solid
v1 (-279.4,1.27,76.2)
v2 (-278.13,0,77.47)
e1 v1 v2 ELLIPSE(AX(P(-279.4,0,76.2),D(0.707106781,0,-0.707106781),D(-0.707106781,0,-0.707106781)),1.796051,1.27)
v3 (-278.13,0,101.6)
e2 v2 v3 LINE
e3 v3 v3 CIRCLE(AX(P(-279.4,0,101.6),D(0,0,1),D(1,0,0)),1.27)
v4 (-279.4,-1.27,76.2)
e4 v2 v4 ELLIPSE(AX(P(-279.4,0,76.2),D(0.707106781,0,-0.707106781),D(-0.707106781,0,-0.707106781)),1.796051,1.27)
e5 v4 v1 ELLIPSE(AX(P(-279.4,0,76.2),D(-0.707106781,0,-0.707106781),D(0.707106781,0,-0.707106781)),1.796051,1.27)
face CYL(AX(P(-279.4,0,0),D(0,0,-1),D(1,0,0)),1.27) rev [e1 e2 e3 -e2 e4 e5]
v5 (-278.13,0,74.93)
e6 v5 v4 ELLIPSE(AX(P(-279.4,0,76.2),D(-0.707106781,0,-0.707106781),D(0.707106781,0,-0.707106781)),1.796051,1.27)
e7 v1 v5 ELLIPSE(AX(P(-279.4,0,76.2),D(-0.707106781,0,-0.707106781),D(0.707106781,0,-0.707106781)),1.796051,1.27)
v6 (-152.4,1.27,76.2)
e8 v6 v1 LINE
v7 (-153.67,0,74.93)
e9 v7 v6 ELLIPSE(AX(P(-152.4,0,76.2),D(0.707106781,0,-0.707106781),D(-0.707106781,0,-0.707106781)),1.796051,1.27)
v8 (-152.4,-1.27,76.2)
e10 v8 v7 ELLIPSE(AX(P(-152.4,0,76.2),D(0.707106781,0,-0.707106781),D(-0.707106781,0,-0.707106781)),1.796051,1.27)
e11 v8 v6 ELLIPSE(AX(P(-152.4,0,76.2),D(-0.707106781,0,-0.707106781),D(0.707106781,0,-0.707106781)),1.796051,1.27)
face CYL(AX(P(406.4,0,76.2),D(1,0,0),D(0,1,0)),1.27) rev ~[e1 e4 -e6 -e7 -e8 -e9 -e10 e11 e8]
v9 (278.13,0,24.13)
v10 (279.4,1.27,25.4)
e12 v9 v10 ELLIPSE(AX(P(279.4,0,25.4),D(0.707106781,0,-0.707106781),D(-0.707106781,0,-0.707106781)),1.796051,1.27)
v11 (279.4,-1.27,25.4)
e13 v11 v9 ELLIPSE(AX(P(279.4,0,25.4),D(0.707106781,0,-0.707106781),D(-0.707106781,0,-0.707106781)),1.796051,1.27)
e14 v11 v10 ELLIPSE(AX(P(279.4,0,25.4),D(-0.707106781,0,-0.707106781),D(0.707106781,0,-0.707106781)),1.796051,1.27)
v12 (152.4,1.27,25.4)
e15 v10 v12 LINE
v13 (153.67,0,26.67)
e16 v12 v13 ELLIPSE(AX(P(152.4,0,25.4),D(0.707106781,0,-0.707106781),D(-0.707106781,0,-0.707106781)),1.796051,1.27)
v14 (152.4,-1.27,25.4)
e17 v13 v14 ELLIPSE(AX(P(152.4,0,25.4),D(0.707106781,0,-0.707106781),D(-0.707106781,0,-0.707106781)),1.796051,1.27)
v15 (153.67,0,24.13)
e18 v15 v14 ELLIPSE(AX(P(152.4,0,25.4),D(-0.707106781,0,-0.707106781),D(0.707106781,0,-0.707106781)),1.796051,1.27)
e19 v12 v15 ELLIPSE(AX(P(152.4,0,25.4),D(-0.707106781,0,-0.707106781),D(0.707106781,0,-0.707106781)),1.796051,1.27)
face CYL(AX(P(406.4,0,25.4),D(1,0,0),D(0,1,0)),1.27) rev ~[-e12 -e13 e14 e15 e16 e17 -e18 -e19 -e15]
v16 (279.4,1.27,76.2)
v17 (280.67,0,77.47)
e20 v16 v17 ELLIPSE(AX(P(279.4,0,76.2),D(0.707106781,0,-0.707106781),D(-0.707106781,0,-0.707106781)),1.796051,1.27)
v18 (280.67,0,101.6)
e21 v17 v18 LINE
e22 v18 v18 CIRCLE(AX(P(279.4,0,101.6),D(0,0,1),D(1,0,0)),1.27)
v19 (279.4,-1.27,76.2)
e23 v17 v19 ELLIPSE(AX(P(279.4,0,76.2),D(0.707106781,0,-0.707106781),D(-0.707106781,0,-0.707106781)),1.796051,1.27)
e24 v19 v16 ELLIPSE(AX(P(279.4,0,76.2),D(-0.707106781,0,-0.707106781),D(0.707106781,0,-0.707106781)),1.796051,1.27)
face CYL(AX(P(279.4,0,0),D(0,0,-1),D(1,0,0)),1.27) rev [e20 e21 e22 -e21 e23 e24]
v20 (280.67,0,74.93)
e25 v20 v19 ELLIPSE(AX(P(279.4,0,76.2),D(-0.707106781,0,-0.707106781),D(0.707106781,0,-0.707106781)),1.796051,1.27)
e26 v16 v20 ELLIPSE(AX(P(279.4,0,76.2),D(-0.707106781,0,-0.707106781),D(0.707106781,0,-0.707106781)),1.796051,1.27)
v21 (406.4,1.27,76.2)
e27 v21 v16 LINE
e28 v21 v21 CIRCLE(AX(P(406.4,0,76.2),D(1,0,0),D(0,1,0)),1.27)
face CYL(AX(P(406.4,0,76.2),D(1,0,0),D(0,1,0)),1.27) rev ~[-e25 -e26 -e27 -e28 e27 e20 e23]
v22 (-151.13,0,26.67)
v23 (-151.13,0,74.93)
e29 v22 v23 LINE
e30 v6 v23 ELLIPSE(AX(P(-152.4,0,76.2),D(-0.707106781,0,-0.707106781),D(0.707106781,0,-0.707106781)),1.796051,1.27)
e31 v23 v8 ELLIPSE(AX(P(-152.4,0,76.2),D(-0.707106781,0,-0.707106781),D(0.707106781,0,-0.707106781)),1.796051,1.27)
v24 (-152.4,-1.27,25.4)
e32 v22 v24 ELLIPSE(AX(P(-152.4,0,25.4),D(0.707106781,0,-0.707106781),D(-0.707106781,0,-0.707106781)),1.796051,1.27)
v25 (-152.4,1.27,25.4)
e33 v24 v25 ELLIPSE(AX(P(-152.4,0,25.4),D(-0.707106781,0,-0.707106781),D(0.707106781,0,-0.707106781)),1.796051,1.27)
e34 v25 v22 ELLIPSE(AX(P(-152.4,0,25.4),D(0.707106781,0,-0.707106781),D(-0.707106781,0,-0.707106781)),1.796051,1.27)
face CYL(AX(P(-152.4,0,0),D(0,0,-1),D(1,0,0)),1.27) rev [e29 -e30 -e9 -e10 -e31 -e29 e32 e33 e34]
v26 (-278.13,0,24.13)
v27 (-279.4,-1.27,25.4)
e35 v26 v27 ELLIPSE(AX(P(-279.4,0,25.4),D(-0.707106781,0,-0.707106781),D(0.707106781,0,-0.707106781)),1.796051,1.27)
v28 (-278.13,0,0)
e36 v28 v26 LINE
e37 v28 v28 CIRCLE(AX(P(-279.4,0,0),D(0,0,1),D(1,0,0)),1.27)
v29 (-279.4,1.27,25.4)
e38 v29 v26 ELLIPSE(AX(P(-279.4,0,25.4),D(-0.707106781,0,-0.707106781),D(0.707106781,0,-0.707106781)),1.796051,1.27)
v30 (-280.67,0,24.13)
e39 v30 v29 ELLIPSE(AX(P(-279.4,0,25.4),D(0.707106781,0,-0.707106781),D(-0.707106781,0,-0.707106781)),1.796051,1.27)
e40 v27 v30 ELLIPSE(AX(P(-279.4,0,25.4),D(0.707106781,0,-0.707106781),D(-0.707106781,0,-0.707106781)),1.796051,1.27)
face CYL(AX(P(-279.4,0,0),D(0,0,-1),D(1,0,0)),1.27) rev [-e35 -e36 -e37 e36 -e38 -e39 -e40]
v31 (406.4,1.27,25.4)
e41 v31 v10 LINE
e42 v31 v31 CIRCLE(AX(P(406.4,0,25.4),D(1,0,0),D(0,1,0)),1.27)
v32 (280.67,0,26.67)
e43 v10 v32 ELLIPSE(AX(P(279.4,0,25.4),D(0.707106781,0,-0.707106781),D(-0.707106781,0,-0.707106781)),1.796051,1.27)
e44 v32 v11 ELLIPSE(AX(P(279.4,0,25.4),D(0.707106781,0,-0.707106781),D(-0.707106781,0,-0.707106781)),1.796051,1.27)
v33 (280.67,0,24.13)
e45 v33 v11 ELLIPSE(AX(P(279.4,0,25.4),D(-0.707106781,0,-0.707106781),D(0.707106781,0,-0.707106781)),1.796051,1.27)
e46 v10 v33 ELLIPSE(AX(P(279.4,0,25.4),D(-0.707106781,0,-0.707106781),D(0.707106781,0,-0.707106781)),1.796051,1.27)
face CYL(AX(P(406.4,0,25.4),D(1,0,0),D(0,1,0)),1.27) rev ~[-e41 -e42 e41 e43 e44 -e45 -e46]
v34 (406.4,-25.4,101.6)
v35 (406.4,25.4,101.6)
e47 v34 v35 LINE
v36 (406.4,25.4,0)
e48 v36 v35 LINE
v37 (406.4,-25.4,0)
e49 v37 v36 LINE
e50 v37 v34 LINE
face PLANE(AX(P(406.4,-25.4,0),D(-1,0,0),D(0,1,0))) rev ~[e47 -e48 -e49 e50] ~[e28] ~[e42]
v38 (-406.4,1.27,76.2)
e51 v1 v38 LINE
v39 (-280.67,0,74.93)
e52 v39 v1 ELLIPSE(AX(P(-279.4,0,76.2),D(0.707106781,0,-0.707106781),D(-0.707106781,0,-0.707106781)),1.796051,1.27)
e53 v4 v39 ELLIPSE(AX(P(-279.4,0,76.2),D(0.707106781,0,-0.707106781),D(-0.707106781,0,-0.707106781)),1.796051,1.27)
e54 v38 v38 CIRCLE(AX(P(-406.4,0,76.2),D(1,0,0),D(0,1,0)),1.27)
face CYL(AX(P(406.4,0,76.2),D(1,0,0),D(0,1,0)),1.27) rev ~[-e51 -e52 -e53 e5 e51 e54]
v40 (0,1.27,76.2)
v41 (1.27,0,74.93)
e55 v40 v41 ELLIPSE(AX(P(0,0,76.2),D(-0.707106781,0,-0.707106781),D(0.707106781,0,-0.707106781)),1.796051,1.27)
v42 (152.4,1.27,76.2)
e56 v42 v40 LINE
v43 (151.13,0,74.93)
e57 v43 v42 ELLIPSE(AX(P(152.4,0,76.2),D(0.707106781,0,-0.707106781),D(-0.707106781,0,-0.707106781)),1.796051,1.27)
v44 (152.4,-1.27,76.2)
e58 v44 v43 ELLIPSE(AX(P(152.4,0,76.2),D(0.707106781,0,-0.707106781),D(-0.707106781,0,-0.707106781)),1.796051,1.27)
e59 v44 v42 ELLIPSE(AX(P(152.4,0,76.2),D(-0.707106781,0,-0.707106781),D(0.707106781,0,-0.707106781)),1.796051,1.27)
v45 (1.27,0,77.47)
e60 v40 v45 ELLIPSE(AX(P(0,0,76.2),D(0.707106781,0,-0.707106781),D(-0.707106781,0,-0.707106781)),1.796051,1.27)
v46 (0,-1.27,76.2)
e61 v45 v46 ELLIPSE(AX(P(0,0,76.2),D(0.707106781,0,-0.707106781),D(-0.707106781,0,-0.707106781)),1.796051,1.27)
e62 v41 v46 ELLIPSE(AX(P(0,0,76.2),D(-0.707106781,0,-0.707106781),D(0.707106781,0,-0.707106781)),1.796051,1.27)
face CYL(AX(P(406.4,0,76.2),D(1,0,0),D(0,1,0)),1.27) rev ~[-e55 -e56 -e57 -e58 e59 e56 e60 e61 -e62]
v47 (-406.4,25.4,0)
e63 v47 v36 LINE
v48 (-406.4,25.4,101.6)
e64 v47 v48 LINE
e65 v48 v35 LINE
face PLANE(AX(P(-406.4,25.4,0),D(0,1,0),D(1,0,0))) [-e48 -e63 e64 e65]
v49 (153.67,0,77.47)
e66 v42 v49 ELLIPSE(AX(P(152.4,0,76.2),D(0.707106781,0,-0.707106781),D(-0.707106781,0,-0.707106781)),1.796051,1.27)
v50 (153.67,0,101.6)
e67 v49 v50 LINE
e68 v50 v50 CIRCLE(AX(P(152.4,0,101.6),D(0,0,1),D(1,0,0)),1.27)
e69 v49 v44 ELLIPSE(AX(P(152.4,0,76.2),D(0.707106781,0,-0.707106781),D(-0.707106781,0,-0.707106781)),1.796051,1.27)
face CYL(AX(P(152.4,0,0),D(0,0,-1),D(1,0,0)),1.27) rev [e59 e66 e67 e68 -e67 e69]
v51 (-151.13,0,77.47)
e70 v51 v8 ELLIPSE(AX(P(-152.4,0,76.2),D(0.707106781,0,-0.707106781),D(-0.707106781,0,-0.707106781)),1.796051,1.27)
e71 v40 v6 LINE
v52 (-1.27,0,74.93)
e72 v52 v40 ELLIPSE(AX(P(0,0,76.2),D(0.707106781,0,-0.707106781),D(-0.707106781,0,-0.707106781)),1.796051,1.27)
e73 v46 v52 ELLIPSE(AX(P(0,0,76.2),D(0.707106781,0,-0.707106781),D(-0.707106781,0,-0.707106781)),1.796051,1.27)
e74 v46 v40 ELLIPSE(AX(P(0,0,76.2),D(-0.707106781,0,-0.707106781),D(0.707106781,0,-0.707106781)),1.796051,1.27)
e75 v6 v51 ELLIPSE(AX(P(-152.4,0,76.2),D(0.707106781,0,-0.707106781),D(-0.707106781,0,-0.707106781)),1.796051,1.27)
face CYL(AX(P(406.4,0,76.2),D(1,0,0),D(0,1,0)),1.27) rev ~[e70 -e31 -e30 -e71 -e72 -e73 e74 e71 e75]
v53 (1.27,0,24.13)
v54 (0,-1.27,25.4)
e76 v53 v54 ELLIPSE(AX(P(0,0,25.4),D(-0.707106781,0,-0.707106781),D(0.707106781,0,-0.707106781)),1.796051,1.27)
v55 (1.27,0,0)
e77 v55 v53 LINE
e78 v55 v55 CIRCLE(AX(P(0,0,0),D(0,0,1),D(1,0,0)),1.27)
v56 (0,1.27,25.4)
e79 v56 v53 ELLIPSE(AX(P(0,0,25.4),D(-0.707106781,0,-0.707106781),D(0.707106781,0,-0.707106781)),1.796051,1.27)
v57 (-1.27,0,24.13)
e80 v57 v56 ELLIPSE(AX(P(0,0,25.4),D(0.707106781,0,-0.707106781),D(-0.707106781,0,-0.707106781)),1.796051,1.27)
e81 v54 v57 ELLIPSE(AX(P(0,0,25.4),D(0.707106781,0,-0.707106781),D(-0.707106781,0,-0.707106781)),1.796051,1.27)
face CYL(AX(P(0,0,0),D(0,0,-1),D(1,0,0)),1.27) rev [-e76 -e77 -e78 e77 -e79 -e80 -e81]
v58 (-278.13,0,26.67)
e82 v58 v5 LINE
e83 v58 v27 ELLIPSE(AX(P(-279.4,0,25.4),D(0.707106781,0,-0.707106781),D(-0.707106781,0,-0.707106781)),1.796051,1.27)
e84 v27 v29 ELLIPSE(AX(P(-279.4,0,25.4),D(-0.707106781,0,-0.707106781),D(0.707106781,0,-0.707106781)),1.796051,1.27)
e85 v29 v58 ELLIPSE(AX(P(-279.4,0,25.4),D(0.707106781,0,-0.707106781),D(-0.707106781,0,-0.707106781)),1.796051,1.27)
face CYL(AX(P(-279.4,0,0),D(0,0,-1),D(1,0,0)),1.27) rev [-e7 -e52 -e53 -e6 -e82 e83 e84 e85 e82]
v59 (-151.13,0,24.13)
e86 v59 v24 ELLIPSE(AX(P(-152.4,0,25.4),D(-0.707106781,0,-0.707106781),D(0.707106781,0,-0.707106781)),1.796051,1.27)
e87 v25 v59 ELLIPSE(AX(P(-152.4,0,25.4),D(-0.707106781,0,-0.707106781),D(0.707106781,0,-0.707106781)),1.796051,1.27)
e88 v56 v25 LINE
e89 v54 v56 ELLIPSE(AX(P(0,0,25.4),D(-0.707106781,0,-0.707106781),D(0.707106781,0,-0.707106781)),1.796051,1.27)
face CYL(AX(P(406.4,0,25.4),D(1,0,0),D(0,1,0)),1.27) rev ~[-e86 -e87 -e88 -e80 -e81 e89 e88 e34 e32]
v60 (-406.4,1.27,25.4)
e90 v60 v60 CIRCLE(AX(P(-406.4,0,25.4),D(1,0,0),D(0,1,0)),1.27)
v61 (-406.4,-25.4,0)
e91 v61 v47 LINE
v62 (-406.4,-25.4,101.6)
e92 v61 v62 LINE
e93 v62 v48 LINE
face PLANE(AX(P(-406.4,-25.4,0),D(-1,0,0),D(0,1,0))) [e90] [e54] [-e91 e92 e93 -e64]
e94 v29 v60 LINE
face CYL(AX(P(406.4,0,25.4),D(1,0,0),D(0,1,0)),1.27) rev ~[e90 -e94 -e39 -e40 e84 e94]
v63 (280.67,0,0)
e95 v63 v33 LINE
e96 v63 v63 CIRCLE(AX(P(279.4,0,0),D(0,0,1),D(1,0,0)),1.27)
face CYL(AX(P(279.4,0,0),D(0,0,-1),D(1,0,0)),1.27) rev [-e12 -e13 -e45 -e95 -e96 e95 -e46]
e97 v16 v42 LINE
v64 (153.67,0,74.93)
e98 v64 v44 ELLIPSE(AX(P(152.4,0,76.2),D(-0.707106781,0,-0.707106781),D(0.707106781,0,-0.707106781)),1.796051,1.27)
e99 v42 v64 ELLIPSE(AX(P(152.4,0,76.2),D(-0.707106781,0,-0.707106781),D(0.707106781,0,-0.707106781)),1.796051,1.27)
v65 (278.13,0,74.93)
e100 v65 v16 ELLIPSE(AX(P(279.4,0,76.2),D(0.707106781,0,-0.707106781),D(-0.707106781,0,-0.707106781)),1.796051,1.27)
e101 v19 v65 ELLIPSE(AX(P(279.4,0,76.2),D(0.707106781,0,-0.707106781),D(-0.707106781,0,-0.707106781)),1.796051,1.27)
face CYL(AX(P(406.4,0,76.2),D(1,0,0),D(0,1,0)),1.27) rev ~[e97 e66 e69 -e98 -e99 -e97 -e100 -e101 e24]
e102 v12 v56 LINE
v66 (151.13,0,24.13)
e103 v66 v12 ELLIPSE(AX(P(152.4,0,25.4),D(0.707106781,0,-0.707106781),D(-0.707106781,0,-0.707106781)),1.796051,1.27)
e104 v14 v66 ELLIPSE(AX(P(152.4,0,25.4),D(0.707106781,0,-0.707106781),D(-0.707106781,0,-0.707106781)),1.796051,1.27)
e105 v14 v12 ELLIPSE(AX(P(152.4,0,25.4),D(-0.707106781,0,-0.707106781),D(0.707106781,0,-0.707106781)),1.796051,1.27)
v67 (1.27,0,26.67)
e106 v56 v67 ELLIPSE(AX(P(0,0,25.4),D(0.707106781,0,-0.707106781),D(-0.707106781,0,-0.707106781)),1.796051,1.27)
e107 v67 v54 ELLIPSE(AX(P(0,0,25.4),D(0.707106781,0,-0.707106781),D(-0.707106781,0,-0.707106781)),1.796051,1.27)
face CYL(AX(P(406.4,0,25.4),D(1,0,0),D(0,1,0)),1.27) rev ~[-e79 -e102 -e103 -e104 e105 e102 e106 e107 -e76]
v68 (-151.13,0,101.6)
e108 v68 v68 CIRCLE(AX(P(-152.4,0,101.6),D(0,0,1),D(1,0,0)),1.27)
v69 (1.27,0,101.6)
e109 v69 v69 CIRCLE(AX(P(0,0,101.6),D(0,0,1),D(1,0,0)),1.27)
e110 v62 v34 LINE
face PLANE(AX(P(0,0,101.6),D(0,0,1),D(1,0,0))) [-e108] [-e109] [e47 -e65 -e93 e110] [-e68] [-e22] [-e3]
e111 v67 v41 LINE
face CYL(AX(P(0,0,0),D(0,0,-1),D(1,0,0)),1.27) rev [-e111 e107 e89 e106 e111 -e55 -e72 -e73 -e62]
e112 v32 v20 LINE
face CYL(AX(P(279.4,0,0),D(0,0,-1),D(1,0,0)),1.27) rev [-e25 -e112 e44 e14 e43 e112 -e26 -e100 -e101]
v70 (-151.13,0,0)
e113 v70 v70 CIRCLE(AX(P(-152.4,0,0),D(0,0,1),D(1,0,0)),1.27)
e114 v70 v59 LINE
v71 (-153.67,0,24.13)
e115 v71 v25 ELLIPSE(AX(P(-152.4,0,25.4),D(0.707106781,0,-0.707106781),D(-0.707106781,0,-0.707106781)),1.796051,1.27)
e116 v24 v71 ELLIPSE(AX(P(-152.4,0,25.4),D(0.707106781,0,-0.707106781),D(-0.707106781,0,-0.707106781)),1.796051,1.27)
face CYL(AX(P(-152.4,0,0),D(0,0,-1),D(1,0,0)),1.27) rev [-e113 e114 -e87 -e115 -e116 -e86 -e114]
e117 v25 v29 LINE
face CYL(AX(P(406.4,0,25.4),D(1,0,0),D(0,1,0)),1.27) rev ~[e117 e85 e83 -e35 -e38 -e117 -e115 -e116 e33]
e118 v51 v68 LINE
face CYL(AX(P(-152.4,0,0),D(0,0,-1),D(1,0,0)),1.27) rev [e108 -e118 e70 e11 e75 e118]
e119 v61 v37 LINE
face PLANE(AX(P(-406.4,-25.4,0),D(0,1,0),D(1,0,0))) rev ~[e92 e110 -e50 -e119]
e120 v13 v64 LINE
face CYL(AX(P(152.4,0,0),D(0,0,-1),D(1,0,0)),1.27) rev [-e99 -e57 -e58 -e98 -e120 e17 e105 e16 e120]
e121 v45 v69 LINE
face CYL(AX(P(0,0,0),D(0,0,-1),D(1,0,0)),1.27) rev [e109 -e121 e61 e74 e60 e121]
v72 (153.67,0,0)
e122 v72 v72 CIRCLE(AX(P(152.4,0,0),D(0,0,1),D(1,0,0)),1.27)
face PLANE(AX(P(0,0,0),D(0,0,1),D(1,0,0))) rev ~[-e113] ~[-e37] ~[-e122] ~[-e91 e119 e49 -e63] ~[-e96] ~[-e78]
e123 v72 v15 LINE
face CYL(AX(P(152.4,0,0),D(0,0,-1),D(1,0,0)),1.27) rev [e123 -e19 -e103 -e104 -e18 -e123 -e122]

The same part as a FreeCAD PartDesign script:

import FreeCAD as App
import Part
import Sketcher
Q = App.Units.Quantity

doc = App.newDocument("Part")
body = doc.addObject("PartDesign::Body", "Body")

# Sketch on XY plane
sketch1 = doc.addObject("Sketcher::SketchObject", "Sketch")
body.addObject(sketch1)
sketch1.AttachmentSupport = (doc.XY_Plane, [""])
sketch1.MapMode = "FlatFace"
sketch1.addGeometry([
    Part.LineSegment(App.Vector(-406.4, 25.4, 0), App.Vector(-406.4, -25.4, 0)),  # 0
    Part.LineSegment(App.Vector(-406.4, -25.4, 0), App.Vector(406.4, -25.4, 0)),  # 1
    Part.LineSegment(App.Vector(406.4, -25.4, 0), App.Vector(406.4, 25.4, 0)),  # 2
    Part.LineSegment(App.Vector(406.4, 25.4, 0), App.Vector(-406.4, 25.4, 0)),  # 3
    Part.Circle(App.Vector(-279.4, 0, 0), App.Vector(0, 0, 1), 1.27),  # 4
    Part.Circle(App.Vector(-152.4, 0, 0), App.Vector(0, 0, 1), 1.27),  # 5
    Part.Circle(App.Vector(0, 0, 0), App.Vector(0, 0, 1), 1.27),  # 6
    Part.Circle(App.Vector(152.4, 0, 0), App.Vector(0, 0, 1), 1.27),  # 7
    Part.Circle(App.Vector(279.4, 0, 0), App.Vector(0, 0, 1), 1.27),  # 8
], False)
sketch1.addConstraint([
    Sketcher.Constraint("Coincident", 0, 2, 1, 1),
    Sketcher.Constraint("Coincident", 1, 2, 2, 1),
    Sketcher.Constraint("Coincident", 2, 2, 3, 1),
    Sketcher.Constraint("Coincident", 3, 2, 0, 1),
    Sketcher.Constraint("Vertical", 0),
    Sketcher.Constraint("Horizontal", 1),
    Sketcher.Constraint("Vertical", 2),
    Sketcher.Constraint("Horizontal", 3),
    Sketcher.Constraint("Coincident", 6, 3, -1, 1),
    Sketcher.Constraint("Equal", 4, 5),
    Sketcher.Constraint("Equal", 5, 6),
    Sketcher.Constraint("Equal", 6, 7),
    Sketcher.Constraint("Equal", 7, 8),
    Sketcher.Constraint("Symmetric", 5, 3, 7, 3, -1, 1),
    Sketcher.Constraint("Symmetric", 4, 3, 8, 3, -1, 1),
    Sketcher.Constraint("Symmetric", 0, 2, 2, 2, -1, 1),
    Sketcher.Constraint("PointOnObject", 4, 3, -1),
    Sketcher.Constraint("PointOnObject", 5, 3, -1),
    Sketcher.Constraint("Diameter", 4, Q("0.1 in")),
    Sketcher.Constraint("DistanceX", 1, 1, 1, 2, Q("32 in")),
    Sketcher.Constraint("DistanceY", 0, 2, 0, 1, Q("2 in")),
    Sketcher.Constraint("DistanceX", 4, 3, -1, 1, Q("11 in")),
    Sketcher.Constraint("DistanceX", 5, 3, -1, 1, Q("6 in")),
])
pad1 = doc.addObject("PartDesign::Pad", "Pad")
body.addObject(pad1)
pad1.Profile = sketch1
pad1.Length = Q("4 in")

# Sketch on YZ plane
sketch2 = doc.addObject("Sketcher::SketchObject", "Sketch001")
body.addObject(sketch2)
sketch2.AttachmentSupport = (doc.YZ_Plane, [""])
sketch2.MapMode = "FlatFace"
sketch2.AttachmentOffset = App.Placement(App.Vector(0, 0, 16 * 25.4), App.Rotation())
sketch2.addGeometry([
    Part.Circle(App.Vector(0, 76.2, 0), App.Vector(0, 0, 1), 1.27),
    Part.Circle(App.Vector(0, 25.4, 0), App.Vector(0, 0, 1), 1.27),
], False)
sketch2.addConstraint([
    Sketcher.Constraint("Equal", 0, 1),
    Sketcher.Constraint("PointOnObject", 0, 3, -2),
    Sketcher.Constraint("PointOnObject", 1, 3, -2),
    Sketcher.Constraint("Diameter", 0, Q("0.1 in")),
    Sketcher.Constraint("DistanceY", -1, 1, 0, 3, Q("3 in")),
    Sketcher.Constraint("DistanceY", -1, 1, 1, 3, Q("1 in")),
])
pocket1 = doc.addObject("PartDesign::Pocket", "Pocket")
body.addObject(pocket1)
pocket1.Profile = sketch2
pocket1.Type = "ThroughAll"

doc.recompute()
